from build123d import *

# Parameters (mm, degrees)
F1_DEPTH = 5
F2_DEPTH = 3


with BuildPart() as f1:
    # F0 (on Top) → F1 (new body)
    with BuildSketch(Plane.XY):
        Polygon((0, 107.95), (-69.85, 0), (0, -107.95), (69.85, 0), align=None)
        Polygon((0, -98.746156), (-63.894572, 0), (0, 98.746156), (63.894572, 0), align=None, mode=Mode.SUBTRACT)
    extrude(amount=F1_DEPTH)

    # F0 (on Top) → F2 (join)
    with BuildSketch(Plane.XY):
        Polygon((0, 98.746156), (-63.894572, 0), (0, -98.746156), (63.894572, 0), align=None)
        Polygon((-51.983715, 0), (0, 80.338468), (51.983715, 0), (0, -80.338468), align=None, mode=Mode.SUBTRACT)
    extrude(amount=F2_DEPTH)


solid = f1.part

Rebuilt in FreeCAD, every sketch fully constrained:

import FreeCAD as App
import Part
import Sketcher


def add_polygon(sketch, points):
    """Adds a closed chain of lines whose ends are joined by coincident constraints."""
    first, n = sketch.GeometryCount, len(points)
    for a, b in zip(points, points[1:] + points[:1]):
        sketch.addGeometry(Part.LineSegment(App.Vector(*a, 0), App.Vector(*b, 0)), False)
    for i in range(n):
        sketch.addConstraint(Sketcher.Constraint("Coincident", first + i, 2, first + (i + 1) % n, 1))

doc = App.newDocument("Part")
body = doc.addObject("PartDesign::Body", "Body")

# Sketch on XY plane
sketch1 = body.newObject("Sketcher::SketchObject", "Sketch")
sketch1.AttachmentSupport = (doc.getObject("XY_Plane"), [""])
sketch1.MapMode = "FlatFace"
add_polygon(sketch1, [(0, 108), (-70, 0), (0, -108), (70, 0)])  # lines 0-3
add_polygon(sketch1, [(64, 0), (0, -99), (-64, 0), (0, 99)])  # lines 4-7
sketch1.addConstraint([
    Sketcher.Constraint("Symmetric", 0, 2, 2, 2, -1, 1),
    Sketcher.Constraint("Symmetric", 1, 2, 3, 2, -1, 1),
    Sketcher.Constraint("Symmetric", 4, 2, 6, 2, -1, 1),
    Sketcher.Constraint("Symmetric", 5, 2, 7, 2, -1, 1),
    Sketcher.Constraint("PointOnObject", 0, 2, -1),
    Sketcher.Constraint("PointOnObject", 1, 2, -2),
    Sketcher.Constraint("PointOnObject", 4, 2, -2),
    Sketcher.Constraint("PointOnObject", 5, 2, -1),
    Sketcher.Constraint("Parallel", 2, 4),
    Sketcher.Constraint("DistanceX", 0, 2, 2, 2, 139.7),
    Sketcher.Constraint("DistanceY", 1, 2, 3, 2, 215.9),
    Sketcher.Constraint("DistanceX", 5, 2, -1, 1, 63.894572),
])
pad1 = body.newObject("PartDesign::Pad", "Pad")
pad1.Profile = sketch1
pad1.Length = 5

# Sketch on XY plane
sketch2 = body.newObject("Sketcher::SketchObject", "Sketch001")
sketch2.AttachmentSupport = (doc.getObject("XY_Plane"), [""])
sketch2.MapMode = "FlatFace"
add_polygon(sketch2, [(0, 99), (-64, 0), (0, -99), (64, 0)])  # lines 0-3
add_polygon(sketch2, [(0, -80), (-52, 0), (0, 80), (52, 0)])  # lines 4-7
sketch2.addConstraint([
    Sketcher.Constraint("Symmetric", 0, 2, 2, 2, -1, 1),
    Sketcher.Constraint("Symmetric", 1, 2, 3, 2, -1, 1),
    Sketcher.Constraint("Symmetric", 4, 2, 6, 2, -1, 1),
    Sketcher.Constraint("Symmetric", 5, 2, 7, 2, -1, 1),
    Sketcher.Constraint("PointOnObject", 0, 2, -1),
    Sketcher.Constraint("PointOnObject", 1, 2, -2),
    Sketcher.Constraint("PointOnObject", 4, 2, -1),
    Sketcher.Constraint("PointOnObject", 5, 2, -2),
    Sketcher.Constraint("Parallel", 3, 4),
    Sketcher.Constraint("Distance", 4, 95.69),
    Sketcher.Constraint("DistanceX", 0, 2, -1, 1, 63.894572),
    Sketcher.Constraint("DistanceY", -1, 1, 5, 2, 80.338468),
])
pad2 = body.newObject("PartDesign::Pad", "Pad001")
pad2.Profile = sketch2
pad2.Length = 3

doc.recompute()
